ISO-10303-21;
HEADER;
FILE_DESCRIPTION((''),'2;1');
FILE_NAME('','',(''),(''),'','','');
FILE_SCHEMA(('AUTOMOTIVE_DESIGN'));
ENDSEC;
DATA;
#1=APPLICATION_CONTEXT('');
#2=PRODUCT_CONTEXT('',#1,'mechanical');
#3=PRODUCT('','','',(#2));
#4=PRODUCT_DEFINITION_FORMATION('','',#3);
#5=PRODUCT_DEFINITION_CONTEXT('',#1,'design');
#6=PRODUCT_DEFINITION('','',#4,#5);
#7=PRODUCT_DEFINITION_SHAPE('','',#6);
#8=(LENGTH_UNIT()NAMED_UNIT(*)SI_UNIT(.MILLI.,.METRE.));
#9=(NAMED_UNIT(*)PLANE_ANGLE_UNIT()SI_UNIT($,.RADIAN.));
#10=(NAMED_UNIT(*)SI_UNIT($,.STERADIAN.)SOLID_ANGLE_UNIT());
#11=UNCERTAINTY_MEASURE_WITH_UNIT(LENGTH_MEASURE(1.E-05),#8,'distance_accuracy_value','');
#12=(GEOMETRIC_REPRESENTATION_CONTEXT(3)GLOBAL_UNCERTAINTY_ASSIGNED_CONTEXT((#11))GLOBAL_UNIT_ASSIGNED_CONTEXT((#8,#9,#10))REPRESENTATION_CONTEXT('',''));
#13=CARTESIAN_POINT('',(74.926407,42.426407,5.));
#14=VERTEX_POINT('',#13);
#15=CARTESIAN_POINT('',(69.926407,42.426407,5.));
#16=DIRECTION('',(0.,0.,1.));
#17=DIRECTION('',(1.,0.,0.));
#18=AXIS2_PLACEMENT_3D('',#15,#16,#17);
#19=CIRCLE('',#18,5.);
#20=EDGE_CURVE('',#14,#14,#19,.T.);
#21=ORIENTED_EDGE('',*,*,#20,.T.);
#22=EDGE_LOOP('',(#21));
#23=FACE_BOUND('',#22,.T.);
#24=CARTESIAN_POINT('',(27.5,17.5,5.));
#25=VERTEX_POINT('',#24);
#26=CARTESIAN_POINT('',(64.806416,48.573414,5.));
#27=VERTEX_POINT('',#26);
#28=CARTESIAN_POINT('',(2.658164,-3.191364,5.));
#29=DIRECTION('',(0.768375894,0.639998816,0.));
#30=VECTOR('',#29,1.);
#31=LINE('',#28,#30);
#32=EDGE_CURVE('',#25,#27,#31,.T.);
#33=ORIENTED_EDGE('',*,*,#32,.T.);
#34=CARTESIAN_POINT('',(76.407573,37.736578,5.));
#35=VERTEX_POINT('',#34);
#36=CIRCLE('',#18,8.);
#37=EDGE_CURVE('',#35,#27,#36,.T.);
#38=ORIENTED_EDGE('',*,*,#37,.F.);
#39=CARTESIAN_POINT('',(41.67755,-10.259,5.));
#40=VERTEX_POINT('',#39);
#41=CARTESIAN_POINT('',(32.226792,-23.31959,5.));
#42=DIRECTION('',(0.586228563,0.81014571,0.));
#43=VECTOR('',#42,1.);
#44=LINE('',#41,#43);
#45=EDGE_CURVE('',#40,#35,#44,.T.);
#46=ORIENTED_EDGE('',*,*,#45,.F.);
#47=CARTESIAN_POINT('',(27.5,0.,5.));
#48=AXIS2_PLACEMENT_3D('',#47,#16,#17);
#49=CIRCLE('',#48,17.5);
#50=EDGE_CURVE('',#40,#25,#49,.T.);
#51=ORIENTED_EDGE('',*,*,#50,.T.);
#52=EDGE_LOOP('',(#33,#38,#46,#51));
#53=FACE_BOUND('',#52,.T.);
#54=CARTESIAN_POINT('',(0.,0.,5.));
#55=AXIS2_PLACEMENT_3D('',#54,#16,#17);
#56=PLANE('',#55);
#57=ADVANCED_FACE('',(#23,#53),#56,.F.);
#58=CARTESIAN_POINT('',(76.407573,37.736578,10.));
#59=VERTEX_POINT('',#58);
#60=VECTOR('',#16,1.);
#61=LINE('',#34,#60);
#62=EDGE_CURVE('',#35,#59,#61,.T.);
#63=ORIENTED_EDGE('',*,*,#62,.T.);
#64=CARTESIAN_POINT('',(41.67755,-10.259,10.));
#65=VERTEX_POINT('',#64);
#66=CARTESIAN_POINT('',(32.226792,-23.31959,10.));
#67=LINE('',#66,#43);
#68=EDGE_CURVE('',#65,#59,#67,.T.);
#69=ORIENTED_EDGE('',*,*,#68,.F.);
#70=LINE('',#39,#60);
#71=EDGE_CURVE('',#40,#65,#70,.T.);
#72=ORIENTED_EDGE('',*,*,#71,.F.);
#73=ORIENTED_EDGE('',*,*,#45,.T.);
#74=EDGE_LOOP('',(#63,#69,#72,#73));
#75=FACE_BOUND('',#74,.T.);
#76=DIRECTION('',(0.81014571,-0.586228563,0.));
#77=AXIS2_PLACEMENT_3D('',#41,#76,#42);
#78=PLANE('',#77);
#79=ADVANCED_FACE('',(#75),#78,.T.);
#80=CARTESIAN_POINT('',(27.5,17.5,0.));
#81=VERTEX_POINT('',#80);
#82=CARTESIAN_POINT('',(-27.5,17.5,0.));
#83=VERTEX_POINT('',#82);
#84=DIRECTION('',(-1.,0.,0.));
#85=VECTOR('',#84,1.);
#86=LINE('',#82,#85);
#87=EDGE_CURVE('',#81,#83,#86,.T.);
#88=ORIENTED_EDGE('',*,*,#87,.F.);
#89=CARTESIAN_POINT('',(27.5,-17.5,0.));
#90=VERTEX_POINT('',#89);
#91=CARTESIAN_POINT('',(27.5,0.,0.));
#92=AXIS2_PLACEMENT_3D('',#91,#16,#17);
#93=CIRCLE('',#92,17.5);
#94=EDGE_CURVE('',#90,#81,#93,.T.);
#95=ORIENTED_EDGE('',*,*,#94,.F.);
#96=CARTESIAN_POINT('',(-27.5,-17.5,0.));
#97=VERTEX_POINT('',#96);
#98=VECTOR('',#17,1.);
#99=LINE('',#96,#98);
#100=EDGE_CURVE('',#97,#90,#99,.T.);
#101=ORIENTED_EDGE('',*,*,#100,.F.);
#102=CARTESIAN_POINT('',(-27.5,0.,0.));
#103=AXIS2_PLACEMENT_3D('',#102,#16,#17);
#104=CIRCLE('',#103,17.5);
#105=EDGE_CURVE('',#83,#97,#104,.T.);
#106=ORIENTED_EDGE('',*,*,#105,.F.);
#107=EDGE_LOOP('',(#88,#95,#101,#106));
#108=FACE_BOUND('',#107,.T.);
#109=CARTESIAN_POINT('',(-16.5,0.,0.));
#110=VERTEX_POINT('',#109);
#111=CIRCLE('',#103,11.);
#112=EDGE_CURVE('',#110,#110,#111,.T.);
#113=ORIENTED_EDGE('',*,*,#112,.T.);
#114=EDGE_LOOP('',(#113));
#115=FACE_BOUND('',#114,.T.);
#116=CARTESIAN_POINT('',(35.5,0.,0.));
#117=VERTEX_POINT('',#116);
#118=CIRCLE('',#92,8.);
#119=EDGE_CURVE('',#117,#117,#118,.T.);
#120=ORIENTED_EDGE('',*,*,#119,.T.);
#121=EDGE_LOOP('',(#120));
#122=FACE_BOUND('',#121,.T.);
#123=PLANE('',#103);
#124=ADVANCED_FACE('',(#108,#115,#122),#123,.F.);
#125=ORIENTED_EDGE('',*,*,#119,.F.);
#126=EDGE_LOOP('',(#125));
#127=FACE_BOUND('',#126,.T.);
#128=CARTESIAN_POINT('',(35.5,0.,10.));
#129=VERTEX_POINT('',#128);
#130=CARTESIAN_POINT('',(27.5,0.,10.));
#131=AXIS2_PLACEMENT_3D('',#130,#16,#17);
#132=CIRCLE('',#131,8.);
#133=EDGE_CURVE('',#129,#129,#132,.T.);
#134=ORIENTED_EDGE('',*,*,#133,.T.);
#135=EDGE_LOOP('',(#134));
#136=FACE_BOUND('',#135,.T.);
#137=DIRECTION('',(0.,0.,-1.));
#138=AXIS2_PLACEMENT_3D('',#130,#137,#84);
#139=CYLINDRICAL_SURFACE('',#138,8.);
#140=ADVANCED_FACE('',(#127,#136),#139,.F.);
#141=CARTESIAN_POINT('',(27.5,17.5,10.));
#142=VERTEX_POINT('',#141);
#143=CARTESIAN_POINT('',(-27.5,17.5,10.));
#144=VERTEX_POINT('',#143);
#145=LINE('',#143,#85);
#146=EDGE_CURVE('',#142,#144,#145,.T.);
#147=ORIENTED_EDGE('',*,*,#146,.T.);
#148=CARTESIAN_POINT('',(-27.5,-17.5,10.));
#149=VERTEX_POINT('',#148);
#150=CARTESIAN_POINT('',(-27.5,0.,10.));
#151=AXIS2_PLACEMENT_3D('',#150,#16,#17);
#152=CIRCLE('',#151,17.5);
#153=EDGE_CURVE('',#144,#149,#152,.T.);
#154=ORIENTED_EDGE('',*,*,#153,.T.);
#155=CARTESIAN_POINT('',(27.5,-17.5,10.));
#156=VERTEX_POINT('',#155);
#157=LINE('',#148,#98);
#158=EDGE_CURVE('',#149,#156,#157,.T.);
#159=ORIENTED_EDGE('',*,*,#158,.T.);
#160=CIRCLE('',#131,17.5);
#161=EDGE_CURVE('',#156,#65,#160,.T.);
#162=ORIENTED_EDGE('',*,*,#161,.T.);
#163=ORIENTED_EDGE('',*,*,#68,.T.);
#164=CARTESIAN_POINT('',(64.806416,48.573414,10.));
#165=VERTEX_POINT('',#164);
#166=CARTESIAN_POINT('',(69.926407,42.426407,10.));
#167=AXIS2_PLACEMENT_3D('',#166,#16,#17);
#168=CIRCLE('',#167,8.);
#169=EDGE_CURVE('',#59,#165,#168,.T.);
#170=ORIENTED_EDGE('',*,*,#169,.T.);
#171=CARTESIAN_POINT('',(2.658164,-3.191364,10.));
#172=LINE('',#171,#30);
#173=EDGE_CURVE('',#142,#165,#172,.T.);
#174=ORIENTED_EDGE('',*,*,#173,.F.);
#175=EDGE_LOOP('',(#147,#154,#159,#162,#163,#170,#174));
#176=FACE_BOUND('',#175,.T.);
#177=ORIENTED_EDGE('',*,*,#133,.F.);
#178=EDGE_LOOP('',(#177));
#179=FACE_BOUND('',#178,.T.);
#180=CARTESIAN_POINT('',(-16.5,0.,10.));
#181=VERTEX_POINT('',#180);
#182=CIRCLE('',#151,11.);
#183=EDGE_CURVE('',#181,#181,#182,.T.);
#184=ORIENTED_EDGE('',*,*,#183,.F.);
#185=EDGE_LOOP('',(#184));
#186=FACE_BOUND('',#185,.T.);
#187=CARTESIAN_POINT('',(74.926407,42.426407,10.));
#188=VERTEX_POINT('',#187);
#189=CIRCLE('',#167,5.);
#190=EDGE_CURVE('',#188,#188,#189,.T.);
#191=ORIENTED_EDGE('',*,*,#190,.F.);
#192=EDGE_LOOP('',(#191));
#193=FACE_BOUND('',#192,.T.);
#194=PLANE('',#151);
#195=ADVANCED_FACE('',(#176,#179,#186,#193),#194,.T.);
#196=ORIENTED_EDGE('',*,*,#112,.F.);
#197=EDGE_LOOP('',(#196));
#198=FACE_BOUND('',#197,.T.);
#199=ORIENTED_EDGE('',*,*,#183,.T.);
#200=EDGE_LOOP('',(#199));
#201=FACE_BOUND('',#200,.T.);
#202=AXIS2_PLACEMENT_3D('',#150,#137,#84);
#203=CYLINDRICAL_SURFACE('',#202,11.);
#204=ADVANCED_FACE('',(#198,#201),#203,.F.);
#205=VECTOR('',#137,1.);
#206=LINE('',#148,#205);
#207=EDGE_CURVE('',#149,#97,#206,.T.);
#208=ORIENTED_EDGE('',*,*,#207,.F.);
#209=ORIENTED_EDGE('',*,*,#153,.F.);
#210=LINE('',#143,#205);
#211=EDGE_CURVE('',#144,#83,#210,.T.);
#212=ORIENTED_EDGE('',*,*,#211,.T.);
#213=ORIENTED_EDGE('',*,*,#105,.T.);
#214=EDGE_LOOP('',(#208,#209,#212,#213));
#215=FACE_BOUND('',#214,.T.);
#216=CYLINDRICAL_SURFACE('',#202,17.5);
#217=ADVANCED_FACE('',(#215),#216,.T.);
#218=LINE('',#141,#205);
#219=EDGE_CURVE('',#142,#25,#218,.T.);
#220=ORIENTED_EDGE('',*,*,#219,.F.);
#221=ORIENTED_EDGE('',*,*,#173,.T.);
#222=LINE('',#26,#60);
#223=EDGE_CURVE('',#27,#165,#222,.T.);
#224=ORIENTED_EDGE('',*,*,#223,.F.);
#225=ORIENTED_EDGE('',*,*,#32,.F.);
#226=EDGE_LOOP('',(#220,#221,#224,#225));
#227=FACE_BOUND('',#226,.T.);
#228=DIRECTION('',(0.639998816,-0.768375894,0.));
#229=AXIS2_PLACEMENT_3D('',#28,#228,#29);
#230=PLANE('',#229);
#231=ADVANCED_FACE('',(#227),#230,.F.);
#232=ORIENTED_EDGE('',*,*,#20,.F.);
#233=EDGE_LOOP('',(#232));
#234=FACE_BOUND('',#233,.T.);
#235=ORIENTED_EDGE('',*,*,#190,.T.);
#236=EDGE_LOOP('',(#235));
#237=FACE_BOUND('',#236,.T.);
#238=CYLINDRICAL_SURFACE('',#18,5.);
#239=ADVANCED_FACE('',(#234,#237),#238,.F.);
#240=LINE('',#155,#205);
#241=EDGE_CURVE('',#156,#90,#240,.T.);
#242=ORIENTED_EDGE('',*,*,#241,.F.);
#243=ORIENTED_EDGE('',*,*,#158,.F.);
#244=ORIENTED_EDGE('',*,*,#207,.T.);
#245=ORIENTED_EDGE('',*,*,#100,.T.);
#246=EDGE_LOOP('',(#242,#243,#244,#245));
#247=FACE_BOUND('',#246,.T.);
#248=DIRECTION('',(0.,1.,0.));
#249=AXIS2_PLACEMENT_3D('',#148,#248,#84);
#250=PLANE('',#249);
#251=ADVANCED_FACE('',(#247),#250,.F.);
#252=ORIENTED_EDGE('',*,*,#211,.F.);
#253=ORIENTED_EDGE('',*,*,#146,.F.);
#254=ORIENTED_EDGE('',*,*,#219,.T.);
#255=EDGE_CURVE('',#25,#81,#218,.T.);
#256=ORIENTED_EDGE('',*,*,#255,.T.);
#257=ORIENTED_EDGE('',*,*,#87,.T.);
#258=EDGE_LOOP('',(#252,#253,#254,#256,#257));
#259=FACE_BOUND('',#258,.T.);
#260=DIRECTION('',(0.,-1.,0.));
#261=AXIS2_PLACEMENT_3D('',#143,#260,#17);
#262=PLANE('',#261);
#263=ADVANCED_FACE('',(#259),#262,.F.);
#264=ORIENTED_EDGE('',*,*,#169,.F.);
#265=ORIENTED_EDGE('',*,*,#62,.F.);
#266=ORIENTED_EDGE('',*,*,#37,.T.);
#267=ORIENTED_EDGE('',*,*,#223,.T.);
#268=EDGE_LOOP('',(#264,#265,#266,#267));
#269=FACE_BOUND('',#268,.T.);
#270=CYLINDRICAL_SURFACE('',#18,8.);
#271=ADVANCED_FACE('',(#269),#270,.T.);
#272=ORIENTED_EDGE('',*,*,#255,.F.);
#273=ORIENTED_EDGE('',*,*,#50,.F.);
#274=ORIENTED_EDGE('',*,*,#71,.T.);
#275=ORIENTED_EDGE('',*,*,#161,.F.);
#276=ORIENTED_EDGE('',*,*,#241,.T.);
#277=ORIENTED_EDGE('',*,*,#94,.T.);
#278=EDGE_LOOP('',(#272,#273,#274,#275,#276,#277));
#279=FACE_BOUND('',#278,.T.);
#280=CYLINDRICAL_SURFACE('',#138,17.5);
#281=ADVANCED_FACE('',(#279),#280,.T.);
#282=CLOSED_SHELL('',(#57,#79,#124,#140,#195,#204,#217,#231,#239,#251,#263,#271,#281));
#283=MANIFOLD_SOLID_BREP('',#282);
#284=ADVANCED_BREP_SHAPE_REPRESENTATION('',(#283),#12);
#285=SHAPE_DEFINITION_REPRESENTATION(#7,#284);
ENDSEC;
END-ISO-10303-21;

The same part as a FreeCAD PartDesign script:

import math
import FreeCAD as App
import Part
import Sketcher

V = App.Vector
Q = App.Units.Quantity

doc = App.newDocument("Part")
body = doc.addObject("PartDesign::Body", "Body")

sketch1 = doc.addObject("Sketcher::SketchObject", "Sketch")
body.addObject(sketch1)
sketch1.AttachmentSupport = (doc.XY_Plane, [""])
sketch1.MapMode = "FlatFace"
sketch1.addGeometry(Part.LineSegment(V(27.5, 17.5, 0), V(-27.5, 17.5, 0)), False)
sketch1.addGeometry(Part.ArcOfCircle(Part.Circle(V(-27.5, 0, 0), V(0, 0, 1), 17.5), math.radians(90), math.radians(270)), False)
sketch1.addGeometry(Part.LineSegment(V(-27.5, -17.5, 0), V(27.5, -17.5, 0)), False)
sketch1.addGeometry(Part.ArcOfCircle(Part.Circle(V(27.5, 0, 0), V(0, 0, 1), 17.5), math.radians(-90), math.radians(90)), False)
sketch1.addGeometry(Part.Circle(V(27.5, 0, 0), V(0, 0, 1), 8), False)
sketch1.addGeometry(Part.Circle(V(-27.5, 0, 0), V(0, 0, 1), 11), False)
sketch1.addConstraint(Sketcher.Constraint("Tangent", 0, 2, 1, 1))
sketch1.addConstraint(Sketcher.Constraint("Tangent", 1, 2, 2, 1))
sketch1.addConstraint(Sketcher.Constraint("Tangent", 2, 2, 3, 1))
sketch1.addConstraint(Sketcher.Constraint("Tangent", 3, 2, 0, 1))
sketch1.addConstraint(Sketcher.Constraint("Horizontal", 0))
sketch1.addConstraint(Sketcher.Constraint("Horizontal", 2))
sketch1.addConstraint(Sketcher.Constraint("Coincident", 4, 3, 3, 3))
sketch1.addConstraint(Sketcher.Constraint("Coincident", 5, 3, 1, 3))
sketch1.addConstraint(Sketcher.Constraint("Symmetric", 1, 3, 3, 3, -1, 1))
sketch1.addConstraint(Sketcher.Constraint("Diameter", 4, Q("16 mm")))
sketch1.addConstraint(Sketcher.Constraint("Diameter", 5, Q("22 mm")))
sketch1.addConstraint(Sketcher.Constraint("Radius", 1, Q("17.5 mm")))
sketch1.addConstraint(Sketcher.Constraint("DistanceX", 0, 2, 0, 1, Q("55 mm")))
pad1 = doc.addObject("PartDesign::Pad", "Pad")
body.addObject(pad1)
pad1.Profile = sketch1
pad1.Length = 10

sketch2 = doc.addObject("Sketcher::SketchObject", "Sketch001")
body.addObject(sketch2)
sketch2.AttachmentSupport = (doc.XY_Plane, [""])
sketch2.MapMode = "FlatFace"
sketch2.AttachmentOffset = App.Placement(V(0, 0, 5), App.Rotation())
sketch2.addGeometry(Part.ArcOfCircle(Part.Circle(V(27.5, 0, 0), V(0, 0, 1), 17.5), math.radians(-35.88983), math.radians(90)), False)
sketch2.addGeometry(Part.LineSegment(V(41.67755, -10.259, 0), V(76.407573, 37.736578, 0)), False)
sketch2.addGeometry(Part.ArcOfCircle(Part.Circle(V(69.926407, 42.426407, 0), V(0, 0, 1), 8), math.radians(-35.88983), math.radians(129.791731)), False)
sketch2.addGeometry(Part.LineSegment(V(64.806416, 48.573414, 0), V(27.5, 17.5, 0)), False)
sketch2.addGeometry(Part.Circle(V(69.926407, 42.426407, 0), V(0, 0, 1), 5), False)
sketch2.addConstraint(Sketcher.Constraint("Tangent", 0, 1, 1, 1))
sketch2.addConstraint(Sketcher.Constraint("Tangent", 1, 2, 2, 1))
sketch2.addConstraint(Sketcher.Constraint("Tangent", 2, 2, 3, 1))
sketch2.addConstraint(Sketcher.Constraint("Coincident", 3, 2, 0, 2))
sketch2.addConstraint(Sketcher.Constraint("Coincident", 4, 3, 2, 3))
sketch2.addConstraint(Sketcher.Constraint("PointOnObject", 0, 3, -1))
sketch2.addConstraint(Sketcher.Constraint("Vertical", 0, 3, 3, 2))
sketch2.addConstraint(Sketcher.Constraint("Diameter", 4, Q("10 mm")))
sketch2.addConstraint(Sketcher.Constraint("Radius", 2, Q("8 mm")))
sketch2.addConstraint(Sketcher.Constraint("Radius", 0, Q("17.5 mm")))
sketch2.addConstraint(Sketcher.Constraint("DistanceX", -1, 1, 0, 3, Q("27.5 mm")))
sketch2.addConstraint(Sketcher.Constraint("DistanceY", 0, 1, -1, 1, Q("10.259 mm")))
sketch2.addConstraint(Sketcher.Constraint("Distance", 3, Q("48.552299 mm")))
pad2 = doc.addObject("PartDesign::Pad", "Pad001")
body.addObject(pad2)
pad2.Profile = sketch2
pad2.Length = 5

doc.recompute()
